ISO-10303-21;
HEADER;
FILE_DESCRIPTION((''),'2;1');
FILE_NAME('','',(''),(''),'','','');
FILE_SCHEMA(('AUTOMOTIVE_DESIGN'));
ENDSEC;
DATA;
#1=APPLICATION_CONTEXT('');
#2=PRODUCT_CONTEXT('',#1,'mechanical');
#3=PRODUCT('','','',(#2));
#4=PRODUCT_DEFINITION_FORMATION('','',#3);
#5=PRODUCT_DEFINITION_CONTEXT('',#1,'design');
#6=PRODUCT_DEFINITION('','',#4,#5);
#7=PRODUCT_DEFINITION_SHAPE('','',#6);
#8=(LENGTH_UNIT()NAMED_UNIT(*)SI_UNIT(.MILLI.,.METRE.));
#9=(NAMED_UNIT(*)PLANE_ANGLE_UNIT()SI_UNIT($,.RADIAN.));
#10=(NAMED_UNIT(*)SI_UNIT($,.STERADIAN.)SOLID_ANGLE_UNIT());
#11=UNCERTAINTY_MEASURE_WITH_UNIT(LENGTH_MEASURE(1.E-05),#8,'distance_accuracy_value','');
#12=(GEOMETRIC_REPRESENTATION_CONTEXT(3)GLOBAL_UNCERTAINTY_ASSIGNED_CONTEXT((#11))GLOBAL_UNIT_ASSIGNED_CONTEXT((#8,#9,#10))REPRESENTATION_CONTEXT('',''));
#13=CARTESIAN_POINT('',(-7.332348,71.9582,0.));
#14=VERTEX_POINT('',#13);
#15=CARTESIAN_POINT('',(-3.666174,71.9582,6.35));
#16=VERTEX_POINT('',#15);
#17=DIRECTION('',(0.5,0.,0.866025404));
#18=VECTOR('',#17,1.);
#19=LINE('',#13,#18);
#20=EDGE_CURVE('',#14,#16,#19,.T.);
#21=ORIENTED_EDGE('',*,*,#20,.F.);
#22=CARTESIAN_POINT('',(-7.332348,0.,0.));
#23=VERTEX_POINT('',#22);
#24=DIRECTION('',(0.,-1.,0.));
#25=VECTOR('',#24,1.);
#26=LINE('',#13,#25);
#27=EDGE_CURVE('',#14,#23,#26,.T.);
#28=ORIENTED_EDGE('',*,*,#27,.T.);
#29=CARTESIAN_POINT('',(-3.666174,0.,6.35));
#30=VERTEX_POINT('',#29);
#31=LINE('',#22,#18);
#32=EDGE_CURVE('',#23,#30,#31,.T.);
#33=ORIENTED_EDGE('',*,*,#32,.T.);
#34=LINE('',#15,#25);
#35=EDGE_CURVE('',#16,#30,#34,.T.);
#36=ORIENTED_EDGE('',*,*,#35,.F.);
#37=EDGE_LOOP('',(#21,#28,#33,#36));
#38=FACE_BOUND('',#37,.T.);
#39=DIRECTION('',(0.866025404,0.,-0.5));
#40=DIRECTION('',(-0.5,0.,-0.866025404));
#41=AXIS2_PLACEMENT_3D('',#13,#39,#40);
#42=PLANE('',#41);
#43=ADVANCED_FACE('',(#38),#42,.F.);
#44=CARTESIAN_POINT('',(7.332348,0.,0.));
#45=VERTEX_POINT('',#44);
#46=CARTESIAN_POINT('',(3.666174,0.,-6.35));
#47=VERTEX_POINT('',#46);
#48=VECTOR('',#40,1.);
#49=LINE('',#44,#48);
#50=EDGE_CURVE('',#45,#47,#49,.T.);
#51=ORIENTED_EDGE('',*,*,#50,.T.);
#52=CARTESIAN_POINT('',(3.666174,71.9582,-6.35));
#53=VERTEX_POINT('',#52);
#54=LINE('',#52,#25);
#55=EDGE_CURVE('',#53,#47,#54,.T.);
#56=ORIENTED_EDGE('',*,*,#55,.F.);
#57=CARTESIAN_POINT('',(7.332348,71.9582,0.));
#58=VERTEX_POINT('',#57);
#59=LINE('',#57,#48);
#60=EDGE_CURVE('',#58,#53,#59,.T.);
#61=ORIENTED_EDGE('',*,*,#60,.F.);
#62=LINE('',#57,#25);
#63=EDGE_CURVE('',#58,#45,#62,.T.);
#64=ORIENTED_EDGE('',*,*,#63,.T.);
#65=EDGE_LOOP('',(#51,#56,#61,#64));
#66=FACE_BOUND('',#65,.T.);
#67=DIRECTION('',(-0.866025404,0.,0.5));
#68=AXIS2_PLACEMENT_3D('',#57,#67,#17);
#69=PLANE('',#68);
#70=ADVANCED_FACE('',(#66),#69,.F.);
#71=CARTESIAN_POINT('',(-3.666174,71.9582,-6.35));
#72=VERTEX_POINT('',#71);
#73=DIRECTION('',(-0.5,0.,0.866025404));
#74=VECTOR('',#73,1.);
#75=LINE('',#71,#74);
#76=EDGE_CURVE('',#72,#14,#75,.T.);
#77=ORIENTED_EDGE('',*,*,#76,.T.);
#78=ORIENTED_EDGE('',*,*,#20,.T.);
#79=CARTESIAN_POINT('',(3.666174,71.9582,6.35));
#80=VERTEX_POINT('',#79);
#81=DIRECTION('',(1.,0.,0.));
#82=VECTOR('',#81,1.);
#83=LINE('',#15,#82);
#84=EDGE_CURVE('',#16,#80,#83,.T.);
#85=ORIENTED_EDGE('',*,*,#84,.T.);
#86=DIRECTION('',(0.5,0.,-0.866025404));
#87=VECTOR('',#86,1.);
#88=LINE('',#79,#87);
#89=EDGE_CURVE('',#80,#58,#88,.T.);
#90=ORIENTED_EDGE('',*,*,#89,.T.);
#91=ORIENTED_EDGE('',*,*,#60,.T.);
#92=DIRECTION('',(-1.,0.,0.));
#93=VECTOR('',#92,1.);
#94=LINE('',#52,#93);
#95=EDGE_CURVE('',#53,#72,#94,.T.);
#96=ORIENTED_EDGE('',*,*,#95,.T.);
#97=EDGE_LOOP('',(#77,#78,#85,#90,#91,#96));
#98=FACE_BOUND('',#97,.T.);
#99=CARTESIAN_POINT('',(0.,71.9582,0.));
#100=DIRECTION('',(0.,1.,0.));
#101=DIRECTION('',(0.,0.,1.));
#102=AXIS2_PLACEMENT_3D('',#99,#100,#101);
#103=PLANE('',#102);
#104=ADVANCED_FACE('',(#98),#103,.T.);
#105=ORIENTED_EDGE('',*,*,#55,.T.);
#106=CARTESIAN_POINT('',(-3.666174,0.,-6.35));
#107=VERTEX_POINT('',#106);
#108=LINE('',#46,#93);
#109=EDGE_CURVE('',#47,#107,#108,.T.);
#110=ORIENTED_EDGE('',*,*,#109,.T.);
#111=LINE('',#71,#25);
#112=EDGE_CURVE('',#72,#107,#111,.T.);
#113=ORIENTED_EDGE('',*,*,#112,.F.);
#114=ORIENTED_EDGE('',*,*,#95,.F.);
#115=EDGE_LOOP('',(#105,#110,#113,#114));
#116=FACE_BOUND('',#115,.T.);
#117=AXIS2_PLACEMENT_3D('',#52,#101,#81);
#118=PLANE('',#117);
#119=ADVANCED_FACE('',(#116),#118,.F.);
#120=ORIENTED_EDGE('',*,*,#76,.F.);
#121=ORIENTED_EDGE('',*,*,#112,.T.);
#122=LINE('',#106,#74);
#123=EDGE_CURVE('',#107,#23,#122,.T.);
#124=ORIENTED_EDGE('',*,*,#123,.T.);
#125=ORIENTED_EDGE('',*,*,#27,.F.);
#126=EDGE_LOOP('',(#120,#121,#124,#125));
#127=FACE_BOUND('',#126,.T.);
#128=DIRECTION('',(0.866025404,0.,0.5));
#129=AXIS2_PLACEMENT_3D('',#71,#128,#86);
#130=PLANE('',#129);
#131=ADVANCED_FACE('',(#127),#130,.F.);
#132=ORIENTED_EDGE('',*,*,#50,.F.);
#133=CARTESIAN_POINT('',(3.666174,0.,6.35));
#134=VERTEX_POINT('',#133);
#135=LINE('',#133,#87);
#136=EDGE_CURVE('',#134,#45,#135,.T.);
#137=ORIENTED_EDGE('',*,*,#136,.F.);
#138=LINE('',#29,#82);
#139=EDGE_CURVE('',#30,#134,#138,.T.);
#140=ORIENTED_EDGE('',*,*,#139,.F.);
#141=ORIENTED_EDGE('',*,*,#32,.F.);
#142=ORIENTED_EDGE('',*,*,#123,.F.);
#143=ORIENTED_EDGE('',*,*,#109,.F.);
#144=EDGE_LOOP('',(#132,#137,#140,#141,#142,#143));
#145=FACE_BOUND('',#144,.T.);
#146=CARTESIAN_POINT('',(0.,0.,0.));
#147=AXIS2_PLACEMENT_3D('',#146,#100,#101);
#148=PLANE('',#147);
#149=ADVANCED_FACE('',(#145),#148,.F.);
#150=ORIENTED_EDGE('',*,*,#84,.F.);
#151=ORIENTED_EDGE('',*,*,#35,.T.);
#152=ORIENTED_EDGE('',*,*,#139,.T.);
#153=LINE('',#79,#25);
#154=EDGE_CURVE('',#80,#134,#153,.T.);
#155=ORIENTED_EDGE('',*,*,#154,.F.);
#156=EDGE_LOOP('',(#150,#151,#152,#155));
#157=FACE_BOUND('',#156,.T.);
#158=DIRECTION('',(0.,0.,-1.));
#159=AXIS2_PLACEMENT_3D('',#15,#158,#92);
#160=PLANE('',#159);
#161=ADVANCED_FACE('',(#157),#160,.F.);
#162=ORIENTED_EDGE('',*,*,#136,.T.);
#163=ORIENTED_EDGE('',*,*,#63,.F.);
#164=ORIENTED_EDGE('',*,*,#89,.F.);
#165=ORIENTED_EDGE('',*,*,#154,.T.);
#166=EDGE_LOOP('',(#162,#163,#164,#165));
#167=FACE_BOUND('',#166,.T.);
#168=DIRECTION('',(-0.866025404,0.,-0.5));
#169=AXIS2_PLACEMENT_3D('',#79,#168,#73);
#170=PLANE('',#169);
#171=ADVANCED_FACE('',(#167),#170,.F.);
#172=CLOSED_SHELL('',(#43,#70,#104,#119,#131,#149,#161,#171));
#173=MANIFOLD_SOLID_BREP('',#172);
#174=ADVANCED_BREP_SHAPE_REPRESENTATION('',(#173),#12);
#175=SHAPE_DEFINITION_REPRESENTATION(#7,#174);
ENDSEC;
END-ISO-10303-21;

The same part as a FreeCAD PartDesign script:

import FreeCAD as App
import Part
import Sketcher

V = App.Vector
Q = App.Units.Quantity


def add_polygon(sketch, points):
    """Adds a closed chain of lines whose ends are joined by coincident constraints."""
    first, n = sketch.GeometryCount, len(points)
    for a, b in zip(points, points[1:] + points[:1]):
        sketch.addGeometry(Part.LineSegment(App.Vector(*a, 0), App.Vector(*b, 0)), False)
    for i in range(n):
        sketch.addConstraint(Sketcher.Constraint("Coincident", first + i, 2, first + (i + 1) % n, 1))

doc = App.newDocument("Part")
body = doc.addObject("PartDesign::Body", "Body")

# Sketch on XZ plane
sketch1 = doc.addObject("Sketcher::SketchObject", "Sketch")
body.addObject(sketch1)
sketch1.AttachmentSupport = (doc.XZ_Plane, [""])
sketch1.MapMode = "FlatFace"
add_polygon(sketch1, [(7, 0), (4, -6), (-4, -6), (-7, 0), (-4, 6), (4, 6)])  # lines 0-5
sketch1.addConstraint(Sketcher.Constraint("Horizontal", 1))
sketch1.addConstraint(Sketcher.Constraint("Horizontal", 4))
sketch1.addConstraint(Sketcher.Constraint("Symmetric", 0, 2, 3, 2, -1, 1))
sketch1.addConstraint(Sketcher.Constraint("Symmetric", 2, 2, 5, 2, -1, 1))
sketch1.addConstraint(Sketcher.Constraint("PointOnObject", 2, 2, -1))
sketch1.addConstraint(Sketcher.Constraint("Parallel", 2, 5))
sketch1.addConstraint(Sketcher.Constraint("Vertical", 1, 2, 3, 2))
sketch1.addConstraint(Sketcher.Constraint("Angle", 0, Q("-120 deg")))
sketch1.addConstraint(Sketcher.Constraint("DistanceY", 1, 2, 3, 2, Q("0.5 in")))
sketch1.addConstraint(Sketcher.Constraint("DistanceX", 1, 2, 1, 1, 7.332348))
pad1 = doc.addObject("PartDesign::Pad", "Pad")
body.addObject(pad1)
pad1.Profile = sketch1
pad1.Length = Q("2.833 in")
pad1.Reversed = True

doc.recompute()
